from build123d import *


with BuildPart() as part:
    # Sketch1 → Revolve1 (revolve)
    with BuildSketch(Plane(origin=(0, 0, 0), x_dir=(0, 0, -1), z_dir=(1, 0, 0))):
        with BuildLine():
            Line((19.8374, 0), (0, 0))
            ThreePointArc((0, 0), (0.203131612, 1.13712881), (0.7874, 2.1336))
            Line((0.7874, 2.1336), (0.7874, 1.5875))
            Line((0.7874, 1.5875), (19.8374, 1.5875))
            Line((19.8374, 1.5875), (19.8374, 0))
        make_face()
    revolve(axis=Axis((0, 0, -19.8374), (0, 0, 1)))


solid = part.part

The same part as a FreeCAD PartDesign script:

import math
import FreeCAD as App
import Part
import Sketcher
from FreeCAD import Vector
Q = App.Units.Quantity

doc = App.newDocument("Part")
params = doc.addObject("Spreadsheet::Sheet", "Params")
for row, (alias, value) in enumerate([
    ("sketch1_height", "0.75 in"),
    ("sketch1_width", "0.0625 in"),
    ("sketch1_height2", "0.781 in"),
    ("revolution_angle", "360 deg"),
], start=1):
    params.set(f"A{row}", alias)
    params.set(f"B{row}", "=" + value)
    params.setAlias(f"B{row}", alias)

body = doc.addObject("PartDesign::Body", "Body")

sketch1 = body.newObject("Sketcher::SketchObject", "Sketch")
sketch1.AttachmentSupport = (doc.getObject("YZ_Plane"), [""])
sketch1.MapMode = "FlatFace"
sketch1.addGeometry([
    Part.LineSegment(Vector(0, 0, 0), Vector(0, -19.8374, 0)),
    Part.LineSegment(Vector(0, -19.8374, 0), Vector(1.5875, -19.8374, 0)),
    Part.LineSegment(Vector(1.5875, -19.8374, 0), Vector(1.5875, -0.7874, 0)),
    Part.LineSegment(Vector(1.5875, -0.7874, 0), Vector(2.1336, -0.7874, 0)),
    Part.ArcOfCircle(Part.Circle(Vector(0, -3.284384, 0), Vector(0, 0, 1), 3.284384), math.radians(49.487076), math.radians(90)),
], False)
sketch1.addConstraint([
    Sketcher.Constraint("Coincident", 0, 2, 1, 1),
    Sketcher.Constraint("Coincident", 1, 2, 2, 1),
    Sketcher.Constraint("Coincident", 2, 2, 3, 1),
    Sketcher.Constraint("Coincident", 3, 2, 4, 1),
    Sketcher.Constraint("Coincident", 4, 2, 0, 1),
    Sketcher.Constraint("Vertical", 0),
    Sketcher.Constraint("Horizontal", 1),
    Sketcher.Constraint("Vertical", 2),
    Sketcher.Constraint("Horizontal", 3),
    Sketcher.Constraint("Coincident", 4, 2, -1, 1),
    Sketcher.Constraint("PointOnObject", 4, 3, -2),
    Sketcher.Constraint("DistanceY", 2, 1, 2, 2, Q("0.75 in")),
    Sketcher.Constraint("DistanceX", 1, 1, 1, 2, Q("0.0625 in")),
    Sketcher.Constraint("DistanceY", 0, 2, 0, 1, Q("0.781 in")),
    Sketcher.Constraint("DistanceX", 3, 1, 3, 2, Q("0.0215 in")),
])
sketch1.setExpression("Constraints[11]", "Params.sketch1_height")
sketch1.setExpression("Constraints[12]", "Params.sketch1_width")
sketch1.setExpression("Constraints[13]", "Params.sketch1_height2")
revolution = body.newObject("PartDesign::Revolution", "Revolution")
revolution.Profile = sketch1
revolution.ReferenceAxis = (sketch1, ["V_Axis"])
revolution.setExpression("Angle", "Params.revolution_angle")

doc.recompute()
